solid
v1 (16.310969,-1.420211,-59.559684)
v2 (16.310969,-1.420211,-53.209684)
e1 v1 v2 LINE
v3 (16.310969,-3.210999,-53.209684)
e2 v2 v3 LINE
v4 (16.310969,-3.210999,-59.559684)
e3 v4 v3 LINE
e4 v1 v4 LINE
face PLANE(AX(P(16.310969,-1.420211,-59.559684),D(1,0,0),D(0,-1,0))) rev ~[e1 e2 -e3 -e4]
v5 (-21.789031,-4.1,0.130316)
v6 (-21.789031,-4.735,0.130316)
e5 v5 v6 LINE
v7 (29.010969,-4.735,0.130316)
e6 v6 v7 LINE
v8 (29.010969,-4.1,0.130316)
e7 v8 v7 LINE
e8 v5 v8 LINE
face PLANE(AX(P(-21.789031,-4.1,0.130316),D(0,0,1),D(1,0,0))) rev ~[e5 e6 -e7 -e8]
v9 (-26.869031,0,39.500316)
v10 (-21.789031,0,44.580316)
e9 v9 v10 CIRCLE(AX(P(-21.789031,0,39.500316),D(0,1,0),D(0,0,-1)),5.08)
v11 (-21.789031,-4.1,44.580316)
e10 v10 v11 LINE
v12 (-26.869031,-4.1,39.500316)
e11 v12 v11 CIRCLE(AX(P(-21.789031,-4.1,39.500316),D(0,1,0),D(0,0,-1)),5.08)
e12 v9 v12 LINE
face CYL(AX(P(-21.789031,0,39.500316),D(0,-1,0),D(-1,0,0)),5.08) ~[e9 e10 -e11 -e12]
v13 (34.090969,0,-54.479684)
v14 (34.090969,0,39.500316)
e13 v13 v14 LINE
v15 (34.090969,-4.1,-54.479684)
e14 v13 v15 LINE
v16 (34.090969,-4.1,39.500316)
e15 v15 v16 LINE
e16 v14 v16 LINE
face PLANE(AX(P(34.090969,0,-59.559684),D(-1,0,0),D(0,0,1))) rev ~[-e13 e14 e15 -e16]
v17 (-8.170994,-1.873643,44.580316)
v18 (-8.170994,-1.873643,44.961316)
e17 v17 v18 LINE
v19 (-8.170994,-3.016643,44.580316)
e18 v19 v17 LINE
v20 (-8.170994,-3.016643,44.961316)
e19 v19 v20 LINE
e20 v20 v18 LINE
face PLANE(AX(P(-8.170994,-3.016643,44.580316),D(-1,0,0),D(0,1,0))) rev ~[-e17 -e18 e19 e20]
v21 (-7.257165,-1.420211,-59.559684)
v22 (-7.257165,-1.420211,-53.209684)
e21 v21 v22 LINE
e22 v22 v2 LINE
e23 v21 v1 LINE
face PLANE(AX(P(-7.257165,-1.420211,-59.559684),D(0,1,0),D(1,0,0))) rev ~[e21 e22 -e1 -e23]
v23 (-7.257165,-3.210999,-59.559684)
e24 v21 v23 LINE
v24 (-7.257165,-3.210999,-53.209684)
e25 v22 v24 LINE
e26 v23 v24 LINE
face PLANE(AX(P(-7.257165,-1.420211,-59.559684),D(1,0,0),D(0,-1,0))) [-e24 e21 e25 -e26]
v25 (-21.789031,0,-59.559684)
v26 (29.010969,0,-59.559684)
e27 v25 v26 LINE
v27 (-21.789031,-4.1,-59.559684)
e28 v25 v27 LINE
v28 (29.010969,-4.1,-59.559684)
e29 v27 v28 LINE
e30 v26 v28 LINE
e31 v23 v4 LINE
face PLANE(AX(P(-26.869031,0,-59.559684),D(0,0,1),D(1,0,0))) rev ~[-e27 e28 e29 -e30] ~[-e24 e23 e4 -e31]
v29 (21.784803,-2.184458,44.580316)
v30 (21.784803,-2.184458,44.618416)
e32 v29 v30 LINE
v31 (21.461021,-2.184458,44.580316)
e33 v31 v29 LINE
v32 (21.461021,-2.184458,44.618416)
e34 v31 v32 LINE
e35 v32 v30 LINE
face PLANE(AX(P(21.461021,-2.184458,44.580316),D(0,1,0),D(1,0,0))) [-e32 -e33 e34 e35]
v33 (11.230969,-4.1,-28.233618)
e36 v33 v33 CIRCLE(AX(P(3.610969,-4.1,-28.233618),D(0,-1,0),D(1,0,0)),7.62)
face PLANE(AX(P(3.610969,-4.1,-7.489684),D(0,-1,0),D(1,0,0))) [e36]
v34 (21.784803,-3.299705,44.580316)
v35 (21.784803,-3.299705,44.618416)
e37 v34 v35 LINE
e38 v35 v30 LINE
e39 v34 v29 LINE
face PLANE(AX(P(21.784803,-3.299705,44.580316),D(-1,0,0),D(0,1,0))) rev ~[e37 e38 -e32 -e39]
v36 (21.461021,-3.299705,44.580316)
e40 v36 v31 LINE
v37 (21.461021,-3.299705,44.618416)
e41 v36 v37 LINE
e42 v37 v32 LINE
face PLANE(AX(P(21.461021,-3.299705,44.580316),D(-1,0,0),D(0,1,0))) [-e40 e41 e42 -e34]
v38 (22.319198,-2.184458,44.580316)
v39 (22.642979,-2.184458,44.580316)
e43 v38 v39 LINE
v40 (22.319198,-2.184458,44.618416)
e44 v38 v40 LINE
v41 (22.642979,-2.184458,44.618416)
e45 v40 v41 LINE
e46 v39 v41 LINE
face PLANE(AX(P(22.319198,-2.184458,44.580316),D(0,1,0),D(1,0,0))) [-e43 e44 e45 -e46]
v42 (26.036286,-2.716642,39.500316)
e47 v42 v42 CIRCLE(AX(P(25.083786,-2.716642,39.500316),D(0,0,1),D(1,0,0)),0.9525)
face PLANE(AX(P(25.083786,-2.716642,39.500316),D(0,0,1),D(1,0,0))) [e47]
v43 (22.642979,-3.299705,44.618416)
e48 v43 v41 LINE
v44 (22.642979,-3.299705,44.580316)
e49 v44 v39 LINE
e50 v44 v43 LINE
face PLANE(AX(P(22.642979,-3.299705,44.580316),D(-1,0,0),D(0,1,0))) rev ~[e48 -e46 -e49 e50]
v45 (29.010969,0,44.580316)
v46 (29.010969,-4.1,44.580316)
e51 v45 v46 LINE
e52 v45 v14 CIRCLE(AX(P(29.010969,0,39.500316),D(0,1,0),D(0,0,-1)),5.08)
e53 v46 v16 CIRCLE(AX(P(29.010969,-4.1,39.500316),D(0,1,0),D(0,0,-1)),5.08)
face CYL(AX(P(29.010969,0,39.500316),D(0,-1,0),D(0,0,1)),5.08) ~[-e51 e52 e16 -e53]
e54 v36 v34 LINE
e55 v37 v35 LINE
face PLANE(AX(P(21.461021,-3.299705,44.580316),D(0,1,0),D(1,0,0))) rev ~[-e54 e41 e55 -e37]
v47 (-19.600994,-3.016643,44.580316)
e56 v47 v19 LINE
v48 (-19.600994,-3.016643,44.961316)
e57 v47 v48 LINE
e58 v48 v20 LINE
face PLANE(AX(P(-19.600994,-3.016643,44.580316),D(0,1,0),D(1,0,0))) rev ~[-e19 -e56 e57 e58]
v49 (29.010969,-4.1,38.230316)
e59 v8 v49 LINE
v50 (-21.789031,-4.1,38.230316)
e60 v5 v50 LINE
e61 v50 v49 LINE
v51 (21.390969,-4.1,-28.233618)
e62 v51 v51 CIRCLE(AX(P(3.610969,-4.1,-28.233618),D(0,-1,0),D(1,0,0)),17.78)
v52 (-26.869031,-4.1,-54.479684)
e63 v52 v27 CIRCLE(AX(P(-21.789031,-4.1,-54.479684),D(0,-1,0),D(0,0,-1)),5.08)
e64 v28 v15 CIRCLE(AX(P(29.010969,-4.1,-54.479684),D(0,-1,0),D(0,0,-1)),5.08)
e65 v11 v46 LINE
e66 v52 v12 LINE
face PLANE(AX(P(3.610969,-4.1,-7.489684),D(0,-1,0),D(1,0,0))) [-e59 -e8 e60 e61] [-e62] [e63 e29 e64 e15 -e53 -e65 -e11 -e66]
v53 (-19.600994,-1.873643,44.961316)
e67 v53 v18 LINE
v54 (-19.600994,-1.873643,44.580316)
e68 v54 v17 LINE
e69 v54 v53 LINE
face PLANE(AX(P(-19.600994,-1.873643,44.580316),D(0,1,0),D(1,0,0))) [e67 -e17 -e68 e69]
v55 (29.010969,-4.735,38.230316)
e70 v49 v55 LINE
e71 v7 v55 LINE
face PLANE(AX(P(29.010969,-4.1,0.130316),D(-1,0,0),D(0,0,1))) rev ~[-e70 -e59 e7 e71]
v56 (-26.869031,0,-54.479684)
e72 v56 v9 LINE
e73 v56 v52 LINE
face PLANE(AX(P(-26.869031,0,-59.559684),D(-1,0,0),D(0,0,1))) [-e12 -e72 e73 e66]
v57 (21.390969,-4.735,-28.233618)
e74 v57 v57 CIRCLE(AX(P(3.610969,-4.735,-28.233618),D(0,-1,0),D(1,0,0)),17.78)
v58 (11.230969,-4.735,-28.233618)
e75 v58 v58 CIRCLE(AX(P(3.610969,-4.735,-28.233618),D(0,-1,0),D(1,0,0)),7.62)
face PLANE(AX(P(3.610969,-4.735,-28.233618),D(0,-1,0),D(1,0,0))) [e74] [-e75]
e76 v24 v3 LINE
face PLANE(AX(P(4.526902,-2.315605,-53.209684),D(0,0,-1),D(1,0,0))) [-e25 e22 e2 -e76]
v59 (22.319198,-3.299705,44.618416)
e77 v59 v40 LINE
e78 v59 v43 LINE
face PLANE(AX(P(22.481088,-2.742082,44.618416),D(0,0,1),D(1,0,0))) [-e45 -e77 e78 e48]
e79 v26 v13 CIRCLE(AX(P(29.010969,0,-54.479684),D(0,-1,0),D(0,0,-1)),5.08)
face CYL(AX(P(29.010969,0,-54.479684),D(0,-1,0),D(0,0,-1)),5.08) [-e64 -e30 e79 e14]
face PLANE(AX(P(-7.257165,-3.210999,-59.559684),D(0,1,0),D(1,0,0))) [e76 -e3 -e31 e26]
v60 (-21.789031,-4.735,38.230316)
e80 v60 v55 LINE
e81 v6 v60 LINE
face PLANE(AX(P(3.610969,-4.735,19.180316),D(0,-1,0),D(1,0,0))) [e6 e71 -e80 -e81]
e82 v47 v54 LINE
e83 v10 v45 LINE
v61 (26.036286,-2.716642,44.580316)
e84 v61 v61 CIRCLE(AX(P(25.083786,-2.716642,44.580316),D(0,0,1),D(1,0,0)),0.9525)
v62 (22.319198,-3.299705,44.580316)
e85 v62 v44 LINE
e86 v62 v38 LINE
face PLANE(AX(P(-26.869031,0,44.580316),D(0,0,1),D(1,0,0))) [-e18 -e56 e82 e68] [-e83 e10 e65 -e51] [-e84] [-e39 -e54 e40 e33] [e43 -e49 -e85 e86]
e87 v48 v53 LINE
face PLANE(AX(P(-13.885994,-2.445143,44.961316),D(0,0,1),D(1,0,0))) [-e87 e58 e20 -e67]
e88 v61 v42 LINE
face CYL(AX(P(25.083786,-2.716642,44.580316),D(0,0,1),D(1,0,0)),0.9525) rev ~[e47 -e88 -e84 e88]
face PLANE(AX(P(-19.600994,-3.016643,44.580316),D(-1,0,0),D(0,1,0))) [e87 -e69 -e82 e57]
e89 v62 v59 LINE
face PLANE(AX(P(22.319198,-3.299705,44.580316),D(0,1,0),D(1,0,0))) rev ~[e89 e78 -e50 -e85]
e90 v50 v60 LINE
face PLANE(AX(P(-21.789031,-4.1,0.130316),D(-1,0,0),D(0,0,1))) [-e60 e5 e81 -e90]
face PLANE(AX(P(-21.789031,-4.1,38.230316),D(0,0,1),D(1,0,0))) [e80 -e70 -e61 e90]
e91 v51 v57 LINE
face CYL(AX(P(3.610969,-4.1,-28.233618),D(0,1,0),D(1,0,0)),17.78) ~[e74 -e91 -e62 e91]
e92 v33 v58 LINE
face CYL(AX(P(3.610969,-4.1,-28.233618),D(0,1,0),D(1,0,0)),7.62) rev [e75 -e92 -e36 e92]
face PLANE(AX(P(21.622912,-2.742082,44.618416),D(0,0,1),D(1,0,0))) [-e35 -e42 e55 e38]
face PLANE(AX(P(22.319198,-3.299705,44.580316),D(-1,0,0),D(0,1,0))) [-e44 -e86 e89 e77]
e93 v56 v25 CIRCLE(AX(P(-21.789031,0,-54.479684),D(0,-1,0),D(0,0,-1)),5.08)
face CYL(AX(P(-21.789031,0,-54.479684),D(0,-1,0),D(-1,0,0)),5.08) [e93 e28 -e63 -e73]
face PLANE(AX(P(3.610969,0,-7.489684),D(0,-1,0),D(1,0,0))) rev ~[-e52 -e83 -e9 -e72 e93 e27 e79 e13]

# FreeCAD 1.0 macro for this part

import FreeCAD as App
import Part
import Sketcher

V = App.Vector
Q = App.Units.Quantity


def edges_at(feature, points):
    """Names of the edges that pass closest to the given points."""
    edges = feature.Shape.Edges
    near = lambda p: min(range(len(edges)), key=lambda i: edges[i].distToShape(Part.Vertex(*p))[0])
    return sorted({f"Edge{near(p) + 1}" for p in points})


def add_polygon(sketch, points):
    """Adds a closed chain of lines whose ends are joined by coincident constraints."""
    first, n = sketch.GeometryCount, len(points)
    for a, b in zip(points, points[1:] + points[:1]):
        sketch.addGeometry(Part.LineSegment(App.Vector(*a, 0), App.Vector(*b, 0)), False)
    for i in range(n):
        sketch.addConstraint(Sketcher.Constraint("Coincident", first + i, 2, first + (i + 1) % n, 1))

doc = App.newDocument("Part")
body = doc.addObject("PartDesign::Body", "Body")

# Sketch on XZ plane
sketch1 = doc.addObject("Sketcher::SketchObject", "Sketch")
body.addObject(sketch1)
sketch1.AttachmentSupport = (doc.XZ_Plane, [""])
sketch1.MapMode = "FlatFace"
add_polygon(sketch1, [(-27, 45), (-27, -60), (34, -60), (34, 45)])  # lines 0-3
sketch1.addConstraint(Sketcher.Constraint("Vertical", 0))
sketch1.addConstraint(Sketcher.Constraint("Horizontal", 1))
sketch1.addConstraint(Sketcher.Constraint("Vertical", 2))
sketch1.addConstraint(Sketcher.Constraint("Horizontal", 3))
sketch1.addConstraint(Sketcher.Constraint("DistanceX", 1, 1, 1, 2, Q("2.4 in")))
sketch1.addConstraint(Sketcher.Constraint("DistanceY", 0, 2, 0, 1, Q("4.1 in")))
sketch1.addConstraint(Sketcher.Constraint("DistanceX", 0, 2, -1, 1, 26.869031))
sketch1.addConstraint(Sketcher.Constraint("DistanceY", 0, 2, -1, 1, 59.559684))
pad1 = doc.addObject("PartDesign::Pad", "Pad")
body.addObject(pad1)
pad1.Profile = sketch1
pad1.Length = 4.1

# Sketch on XZ plane
sketch2 = doc.addObject("Sketcher::SketchObject", "Sketch001")
body.addObject(sketch2)
sketch2.AttachmentSupport = (doc.XZ_Plane, [""])
sketch2.MapMode = "FlatFace"
sketch2.AttachmentOffset = App.Placement(V(0, 0, 4.1), App.Rotation())
add_polygon(sketch2, [(-22, 38), (-22, 0), (29, 0), (29, 38)])  # lines 0-3
sketch2.addGeometry(Part.Circle(V(4, -28, 0), V(0, 0, 1), 18), False)  # 4
sketch2.addGeometry(Part.Circle(V(4, -28, 0), V(0, 0, 1), 8), False)  # 5
sketch2.addConstraint(Sketcher.Constraint("Vertical", 0))
sketch2.addConstraint(Sketcher.Constraint("Horizontal", 1))
sketch2.addConstraint(Sketcher.Constraint("Vertical", 2))
sketch2.addConstraint(Sketcher.Constraint("Horizontal", 3))
sketch2.addConstraint(Sketcher.Constraint("Coincident", 5, 3, 4, 3))
sketch2.addConstraint(Sketcher.Constraint("Diameter", 4, Q("1.4 in")))
sketch2.addConstraint(Sketcher.Constraint("Diameter", 5, Q("0.6 in")))
sketch2.addConstraint(Sketcher.Constraint("DistanceX", 1, 1, 1, 2, Q("2 in")))
sketch2.addConstraint(Sketcher.Constraint("DistanceY", 0, 2, 0, 1, Q("1.5 in")))
sketch2.addConstraint(Sketcher.Constraint("DistanceX", 0, 2, 4, 3, Q("1 in")))
sketch2.addConstraint(Sketcher.Constraint("DistanceX", -1, 1, 4, 3, 3.610969))
sketch2.addConstraint(Sketcher.Constraint("DistanceY", 4, 3, -1, 1, 28.233618))
sketch2.addConstraint(Sketcher.Constraint("DistanceY", -1, 1, 0, 2, 0.130316))
pad2 = doc.addObject("PartDesign::Pad", "Pad001")
body.addObject(pad2)
pad2.Profile = sketch2
pad2.Length = Q("0.025 in")
doc.recompute()

fillet = doc.addObject("PartDesign::Fillet", "Fillet")
body.addObject(fillet)
fillet.Base = (pad2, edges_at(pad2, [
    (-26.869, -2.05, 44.58),
    (34.091, -2.05, 44.58),
    (34.091, -2.05, -59.56),
    (-26.869, -2.05, -59.56),
]))
fillet.Radius = Q("0.2 in")

# Sketch on XY plane
sketch3 = doc.addObject("Sketcher::SketchObject", "Sketch002")
body.addObject(sketch3)
sketch3.AttachmentSupport = (doc.XY_Plane, [""])
sketch3.MapMode = "FlatFace"
sketch3.AttachmentOffset = App.Placement(V(0, 0, 44.580316), App.Rotation())
sketch3.addGeometry(Part.Circle(V(25.8, -8.4, 0), V(0, 0, 1), 1.3), False)
sketch3.addConstraint(Sketcher.Constraint("Diameter", 0, Q("0.1 in")))
sketch3.addConstraint(Sketcher.Constraint("DistanceX", -1, 1, 0, 3, 25.835969))
sketch3.addConstraint(Sketcher.Constraint("DistanceY", 0, 3, -1, 1, 8.355387))
pocket1 = doc.addObject("PartDesign::Pocket", "Pocket")
body.addObject(pocket1)
pocket1.Profile = sketch3
pocket1.Length = Q("0.15 in")

# Sketch on XY plane
sketch4 = doc.addObject("Sketcher::SketchObject", "Sketch003")
body.addObject(sketch4)
sketch4.AttachmentSupport = (doc.XY_Plane, [""])
sketch4.MapMode = "FlatFace"
sketch4.AttachmentOffset = App.Placement(V(0, 0, 44.580316), App.Rotation())
add_polygon(sketch4, [(23.34, -8.18), (23.34, -8.82), (23.47, -8.82), (23.47, -8.18)])  # lines 0-3
add_polygon(sketch4, [(23.69, -8.18), (23.69, -8.83), (23.82, -8.83), (23.82, -8.18)])  # lines 4-7
sketch4.addConstraint(Sketcher.Constraint("Vertical", 0))
sketch4.addConstraint(Sketcher.Constraint("Horizontal", 1))
sketch4.addConstraint(Sketcher.Constraint("Vertical", 2))
sketch4.addConstraint(Sketcher.Constraint("Horizontal", 3))
sketch4.addConstraint(Sketcher.Constraint("Vertical", 4))
sketch4.addConstraint(Sketcher.Constraint("Horizontal", 5))
sketch4.addConstraint(Sketcher.Constraint("Vertical", 6))
sketch4.addConstraint(Sketcher.Constraint("Horizontal", 7))
sketch4.addConstraint(Sketcher.Constraint("Equal", 3, 5))
sketch4.addConstraint(Sketcher.Constraint("DistanceX", 1, 1, 1, 2, Q("0.005 in")))
sketch4.addConstraint(Sketcher.Constraint("DistanceY", 0, 2, 0, 1, Q("0.025 in")))
sketch4.addConstraint(Sketcher.Constraint("DistanceY", 4, 2, 4, 1, 0.641739))
sketch4.addConstraint(Sketcher.Constraint("DistanceX", -1, 1, 4, 2, 23.69157))
sketch4.addConstraint(Sketcher.Constraint("DistanceY", 4, 2, 1, 2, 0.007289))
sketch4.addConstraint(Sketcher.Constraint("DistanceX", -1, 1, 0, 2, 23.343264))
sketch4.addConstraint(Sketcher.Constraint("DistanceY", 0, 2, -1, 1, 8.819346))
pocket2 = doc.addObject("PartDesign::Pocket", "Pocket001")
body.addObject(pocket2)
pocket2.Profile = sketch4
pocket2.Length = Q("0.0025 in")

# Sketch on XY plane
sketch5 = doc.addObject("Sketcher::SketchObject", "Sketch004")
body.addObject(sketch5)
sketch5.AttachmentSupport = (doc.XY_Plane, [""])
sketch5.MapMode = "FlatFace"
sketch5.AttachmentOffset = App.Placement(V(0, 0, -59.559684), App.Rotation())
add_polygon(sketch5, [(-7.3, -3.2), (-7.3, -1.4), (16.3, -1.4), (16.3, -3.2)])  # lines 0-3
sketch5.addConstraint(Sketcher.Constraint("Vertical", 0))
sketch5.addConstraint(Sketcher.Constraint("Horizontal", 1))
sketch5.addConstraint(Sketcher.Constraint("Vertical", 2))
sketch5.addConstraint(Sketcher.Constraint("Horizontal", 3))
sketch5.addConstraint(Sketcher.Constraint("DistanceY", 0, 1, 0, 2, 1.790789))
sketch5.addConstraint(Sketcher.Constraint("DistanceY", 2, 2, -1, 1, 3.210999))
sketch5.addConstraint(Sketcher.Constraint("DistanceX", 1, 1, 1, 2, 23.568134))
sketch5.addConstraint(Sketcher.Constraint("DistanceX", -1, 1, 1, 2, 16.310969))
pocket3 = doc.addObject("PartDesign::Pocket", "Pocket002")
body.addObject(pocket3)
pocket3.Profile = sketch5
pocket3.Length = Q("0.25 in")
pocket3.Reversed = True

# Sketch on XY plane
sketch6 = doc.addObject("Sketcher::SketchObject", "Sketch005")
body.addObject(sketch6)
sketch6.AttachmentSupport = (doc.XY_Plane, [""])
sketch6.MapMode = "FlatFace"
sketch6.AttachmentOffset = App.Placement(V(0, 0, 44.580316), App.Rotation())
add_polygon(sketch6, [(-19.6, -1.9), (-19.6, -3), (-8.2, -3), (-8.2, -1.9)])  # lines 0-3
sketch6.addConstraint(Sketcher.Constraint("Vertical", 0))
sketch6.addConstraint(Sketcher.Constraint("Horizontal", 1))
sketch6.addConstraint(Sketcher.Constraint("Vertical", 2))
sketch6.addConstraint(Sketcher.Constraint("Horizontal", 3))
sketch6.addConstraint(Sketcher.Constraint("DistanceX", 1, 1, 1, 2, Q("0.45 in")))
sketch6.addConstraint(Sketcher.Constraint("DistanceY", 0, 2, 0, 1, Q("0.045 in")))
sketch6.addConstraint(Sketcher.Constraint("DistanceX", 0, 2, -1, 1, 19.600994))
sketch6.addConstraint(Sketcher.Constraint("DistanceY", 0, 2, -1, 1, 3.016643))
pad3 = doc.addObject("PartDesign::Pad", "Pad002")
body.addObject(pad3)
pad3.Profile = sketch6
pad3.Length = Q("0.015 in")

# Sketch on XY plane
sketch7 = doc.addObject("Sketcher::SketchObject", "Sketch006")
body.addObject(sketch7)
sketch7.AttachmentSupport = (doc.XY_Plane, [""])
sketch7.MapMode = "FlatFace"
sketch7.AttachmentOffset = App.Placement(V(0, 0, 44.580316), App.Rotation())
sketch7.addGeometry(Part.Circle(V(25.1, -2.7, 0), V(0, 0, 1), 1), False)
sketch7.addConstraint(Sketcher.Constraint("Diameter", 0, Q("0.075 in")))
sketch7.addConstraint(Sketcher.Constraint("DistanceY", 0, 3, -1, 1, 2.716642))
sketch7.addConstraint(Sketcher.Constraint("DistanceX", -1, 1, 0, 3, 25.083786))
pocket4 = doc.addObject("PartDesign::Pocket", "Pocket003")
body.addObject(pocket4)
pocket4.Profile = sketch7
pocket4.Length = Q("0.2 in")

# Sketch on XY plane
sketch8 = doc.addObject("Sketcher::SketchObject", "Sketch007")
body.addObject(sketch8)
sketch8.AttachmentSupport = (doc.XY_Plane, [""])
sketch8.MapMode = "FlatFace"
sketch8.AttachmentOffset = App.Placement(V(0, 0, 44.580316), App.Rotation())
add_polygon(sketch8, [(21.46, -2.18), (21.46, -3.3), (21.78, -3.3), (21.78, -2.18)])  # lines 0-3
add_polygon(sketch8, [(22.32, -2.18), (22.32, -3.3), (22.64, -3.3), (22.64, -2.18)])  # lines 4-7
sketch8.addConstraint(Sketcher.Constraint("Vertical", 0))
sketch8.addConstraint(Sketcher.Constraint("Horizontal", 1))
sketch8.addConstraint(Sketcher.Constraint("Vertical", 2))
sketch8.addConstraint(Sketcher.Constraint("Horizontal", 3))
sketch8.addConstraint(Sketcher.Constraint("Vertical", 4))
sketch8.addConstraint(Sketcher.Constraint("Horizontal", 5))
sketch8.addConstraint(Sketcher.Constraint("Vertical", 6))
sketch8.addConstraint(Sketcher.Constraint("Horizontal", 7))
sketch8.addConstraint(Sketcher.Constraint("Horizontal", 1, 2, 4, 2))
sketch8.addConstraint(Sketcher.Constraint("Horizontal", 3, 2, 6, 2))
sketch8.addConstraint(Sketcher.Constraint("Equal", 3, 5))
sketch8.addConstraint(Sketcher.Constraint("DistanceX", 5, 1, 5, 2, 0.323781))
sketch8.addConstraint(Sketcher.Constraint("DistanceY", 0, 2, 0, 1, 1.115247))
sketch8.addConstraint(Sketcher.Constraint("DistanceX", -1, 1, 0, 2, 21.461021))
sketch8.addConstraint(Sketcher.Constraint("DistanceY", 2, 2, -1, 1, 2.184458))
sketch8.addConstraint(Sketcher.Constraint("DistanceX", -1, 1, 5, 2, 22.642979))
pad4 = doc.addObject("PartDesign::Pad", "Pad003")
body.addObject(pad4)
pad4.Profile = sketch8
pad4.Length = Q("0.0015 in")

doc.recompute()
